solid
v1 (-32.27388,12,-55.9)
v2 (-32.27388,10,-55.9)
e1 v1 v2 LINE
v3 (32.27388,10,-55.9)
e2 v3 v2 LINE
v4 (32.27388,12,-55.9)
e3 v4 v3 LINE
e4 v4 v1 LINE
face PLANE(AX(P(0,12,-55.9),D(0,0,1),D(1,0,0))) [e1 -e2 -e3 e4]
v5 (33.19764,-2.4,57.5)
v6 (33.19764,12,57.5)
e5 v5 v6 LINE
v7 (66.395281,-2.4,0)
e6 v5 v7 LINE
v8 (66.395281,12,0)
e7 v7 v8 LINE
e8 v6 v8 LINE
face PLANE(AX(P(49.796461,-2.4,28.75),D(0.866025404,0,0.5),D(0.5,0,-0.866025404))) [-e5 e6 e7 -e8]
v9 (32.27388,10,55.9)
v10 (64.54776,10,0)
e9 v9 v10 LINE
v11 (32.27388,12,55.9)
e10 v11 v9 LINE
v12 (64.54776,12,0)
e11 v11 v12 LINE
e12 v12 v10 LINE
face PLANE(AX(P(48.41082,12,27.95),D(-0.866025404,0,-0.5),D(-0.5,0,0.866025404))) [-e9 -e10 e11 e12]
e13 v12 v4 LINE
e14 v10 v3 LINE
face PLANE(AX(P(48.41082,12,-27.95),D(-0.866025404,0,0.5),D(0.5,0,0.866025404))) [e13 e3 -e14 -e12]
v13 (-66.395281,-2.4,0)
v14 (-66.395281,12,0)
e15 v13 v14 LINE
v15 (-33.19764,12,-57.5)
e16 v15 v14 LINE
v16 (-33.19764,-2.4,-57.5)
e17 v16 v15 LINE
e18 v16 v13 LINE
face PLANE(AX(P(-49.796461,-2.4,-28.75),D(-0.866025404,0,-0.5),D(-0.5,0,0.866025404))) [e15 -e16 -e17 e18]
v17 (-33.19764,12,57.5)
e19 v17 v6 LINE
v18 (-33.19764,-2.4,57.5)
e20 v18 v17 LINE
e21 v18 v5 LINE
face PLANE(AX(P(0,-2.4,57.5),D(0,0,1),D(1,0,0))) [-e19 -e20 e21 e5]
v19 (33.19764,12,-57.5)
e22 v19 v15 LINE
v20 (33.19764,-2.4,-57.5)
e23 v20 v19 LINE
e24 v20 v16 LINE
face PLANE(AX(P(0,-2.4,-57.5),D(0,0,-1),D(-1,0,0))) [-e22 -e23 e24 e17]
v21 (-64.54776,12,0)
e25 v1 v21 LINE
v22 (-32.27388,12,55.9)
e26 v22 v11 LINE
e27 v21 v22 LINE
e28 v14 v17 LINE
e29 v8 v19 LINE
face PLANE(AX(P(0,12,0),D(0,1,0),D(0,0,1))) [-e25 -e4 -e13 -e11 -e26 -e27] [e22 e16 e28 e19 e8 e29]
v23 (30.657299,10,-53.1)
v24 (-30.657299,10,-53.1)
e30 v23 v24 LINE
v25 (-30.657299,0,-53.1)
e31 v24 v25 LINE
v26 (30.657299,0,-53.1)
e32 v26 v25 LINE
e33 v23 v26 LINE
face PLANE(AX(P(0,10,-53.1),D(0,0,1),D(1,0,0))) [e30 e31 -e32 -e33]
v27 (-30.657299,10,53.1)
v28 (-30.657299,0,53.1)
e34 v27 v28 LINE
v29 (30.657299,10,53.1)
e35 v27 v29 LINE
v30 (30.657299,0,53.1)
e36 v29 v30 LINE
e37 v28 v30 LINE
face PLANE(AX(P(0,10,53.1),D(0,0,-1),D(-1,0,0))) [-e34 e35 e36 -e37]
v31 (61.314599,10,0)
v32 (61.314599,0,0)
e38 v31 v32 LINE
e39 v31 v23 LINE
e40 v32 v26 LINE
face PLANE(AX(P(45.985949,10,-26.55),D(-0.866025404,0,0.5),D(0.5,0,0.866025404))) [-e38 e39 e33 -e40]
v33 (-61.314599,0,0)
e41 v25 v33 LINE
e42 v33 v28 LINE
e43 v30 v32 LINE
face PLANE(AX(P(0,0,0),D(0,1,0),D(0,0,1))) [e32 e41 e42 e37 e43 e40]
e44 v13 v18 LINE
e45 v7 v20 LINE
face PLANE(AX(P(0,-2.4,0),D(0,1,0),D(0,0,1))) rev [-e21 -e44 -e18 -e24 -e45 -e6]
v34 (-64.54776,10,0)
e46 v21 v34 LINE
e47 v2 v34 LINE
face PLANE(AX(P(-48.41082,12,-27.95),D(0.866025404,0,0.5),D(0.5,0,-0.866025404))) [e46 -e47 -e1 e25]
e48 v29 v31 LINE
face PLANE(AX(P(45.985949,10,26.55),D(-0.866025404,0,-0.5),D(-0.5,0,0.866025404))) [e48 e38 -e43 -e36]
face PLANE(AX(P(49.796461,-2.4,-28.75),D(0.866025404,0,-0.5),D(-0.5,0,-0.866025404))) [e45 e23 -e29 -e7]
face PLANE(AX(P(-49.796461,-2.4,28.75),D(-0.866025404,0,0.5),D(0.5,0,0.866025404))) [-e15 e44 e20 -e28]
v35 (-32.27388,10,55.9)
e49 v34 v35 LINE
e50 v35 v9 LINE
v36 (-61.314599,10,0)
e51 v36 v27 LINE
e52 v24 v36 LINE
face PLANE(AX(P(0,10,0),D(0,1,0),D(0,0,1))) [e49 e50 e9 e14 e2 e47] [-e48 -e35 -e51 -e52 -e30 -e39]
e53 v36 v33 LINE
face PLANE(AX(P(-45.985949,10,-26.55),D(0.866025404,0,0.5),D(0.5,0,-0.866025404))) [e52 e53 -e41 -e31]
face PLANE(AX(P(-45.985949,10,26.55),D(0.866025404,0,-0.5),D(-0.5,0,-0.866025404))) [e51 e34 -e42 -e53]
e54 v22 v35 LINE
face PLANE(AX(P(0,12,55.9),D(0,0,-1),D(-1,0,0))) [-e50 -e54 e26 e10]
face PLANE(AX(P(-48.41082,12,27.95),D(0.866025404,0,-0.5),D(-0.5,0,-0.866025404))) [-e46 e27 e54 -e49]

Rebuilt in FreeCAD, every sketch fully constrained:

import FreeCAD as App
import Part
import Sketcher
from FreeCAD import Vector
Q = App.Units.Quantity


def add_polygon(sketch, points):
    """Adds a closed chain of lines whose ends are joined by coincident constraints."""
    first, n = sketch.GeometryCount, len(points)
    for a, b in zip(points, points[1:] + points[:1]):
        sketch.addGeometry(Part.LineSegment(App.Vector(*a, 0), App.Vector(*b, 0)), False)
    for i in range(n):
        sketch.addConstraint(Sketcher.Constraint("Coincident", first + i, 2, first + (i + 1) % n, 1))

doc = App.newDocument("Part")
params = doc.addObject("Spreadsheet::Sheet", "Params")
for row, (alias, value) in enumerate([
    ("pad1_length", "2.4 mm"),
    ("pad2_length", "10 mm"),
    ("pad3_length", "12 mm"),
], start=1):
    params.set(f"A{row}", alias)
    params.set(f"B{row}", "=" + value)
    params.setAlias(f"B{row}", alias)

body = doc.addObject("PartDesign::Body", "Body")

# Sketch on XZ plane
sketch1 = doc.addObject("Sketcher::SketchObject", "Sketch")
body.addObject(sketch1)
sketch1.AttachmentSupport = (doc.XZ_Plane, [""])
sketch1.MapMode = "FlatFace"
add_polygon(sketch1, [(66, 0), (33, -58), (-33, -58), (-66, 0), (-33, 58), (33, 58)])  # lines 0-5
sketch1.addConstraint(Sketcher.Constraint("Horizontal", 1))
sketch1.addConstraint(Sketcher.Constraint("Horizontal", 4))
sketch1.addConstraint(Sketcher.Constraint("Symmetric", 0, 2, 3, 2, -1, 1))
sketch1.addConstraint(Sketcher.Constraint("Symmetric", 2, 2, 5, 2, -1, 1))
sketch1.addConstraint(Sketcher.Constraint("PointOnObject", 2, 2, -1))
sketch1.addConstraint(Sketcher.Constraint("Parallel", 2, 5))
sketch1.addConstraint(Sketcher.Constraint("Vertical", 1, 2, 3, 2))
sketch1.addConstraint(Sketcher.Constraint("Angle", 0, Q("-120 deg")))
sketch1.addConstraint(Sketcher.Constraint("DistanceY", 1, 2, 3, 2, 115.0))
sketch1.addConstraint(Sketcher.Constraint("DistanceX", 1, 2, 1, 1, 66.395281))
pad1 = doc.addObject("PartDesign::Pad", "Pad")
body.addObject(pad1)
pad1.Profile = sketch1
pad1.setExpression("Length", "Params.pad1_length")

# Sketch on XZ plane
sketch2 = doc.addObject("Sketcher::SketchObject", "Sketch001")
body.addObject(sketch2)
sketch2.AttachmentSupport = (doc.XZ_Plane, [""])
sketch2.MapMode = "FlatFace"
add_polygon(sketch2, [(32, 56), (65, 0), (32, -56), (-32, -56), (-65, 0), (-32, 56)])  # lines 0-5
add_polygon(sketch2, [(-31, -53), (31, -53), (61, 0), (31, 53), (-31, 53), (-61, 0)])  # lines 6-11
sketch2.addConstraint(Sketcher.Constraint("Horizontal", 2))
sketch2.addConstraint(Sketcher.Constraint("Horizontal", 5))
sketch2.addConstraint(Sketcher.Constraint("Horizontal", 6))
sketch2.addConstraint(Sketcher.Constraint("Horizontal", 9))
sketch2.addConstraint(Sketcher.Constraint("Symmetric", 0, 2, 3, 2, -1, 1))
sketch2.addConstraint(Sketcher.Constraint("Symmetric", 1, 2, 4, 2, -1, 1))
sketch2.addConstraint(Sketcher.Constraint("Symmetric", 6, 2, 9, 2, -1, 1))
sketch2.addConstraint(Sketcher.Constraint("Symmetric", 7, 2, 10, 2, -1, 1))
sketch2.addConstraint(Sketcher.Constraint("PointOnObject", 0, 2, -1))
sketch2.addConstraint(Sketcher.Constraint("PointOnObject", 7, 2, -1))
sketch2.addConstraint(Sketcher.Constraint("Parallel", 0, 3))
sketch2.addConstraint(Sketcher.Constraint("Parallel", 4, 7))
sketch2.addConstraint(Sketcher.Constraint("Parallel", 3, 8))
sketch2.addConstraint(Sketcher.Constraint("Parallel", 8, 11))
sketch2.addConstraint(Sketcher.Constraint("Vertical", 2, 2, 4, 2))
sketch2.addConstraint(Sketcher.Constraint("Angle", 0, Q("-60 deg")))
sketch2.addConstraint(Sketcher.Constraint("DistanceY", 6, 2, 5, 2, 109.0))
sketch2.addConstraint(Sketcher.Constraint("DistanceY", 1, 2, -1, 1, 55.9))
sketch2.addConstraint(Sketcher.Constraint("DistanceX", 6, 1, 6, 2, 61.314599))
sketch2.addConstraint(Sketcher.Constraint("DistanceX", 2, 2, 2, 1, 64.54776))
pad2 = doc.addObject("PartDesign::Pad", "Pad001")
body.addObject(pad2)
pad2.Profile = sketch2
pad2.setExpression("Length", "Params.pad2_length")
pad2.Reversed = True

# Sketch on XZ plane
sketch3 = doc.addObject("Sketcher::SketchObject", "Sketch002")
body.addObject(sketch3)
sketch3.AttachmentSupport = (doc.XZ_Plane, [""])
sketch3.MapMode = "FlatFace"
add_polygon(sketch3, [(-33, 58), (33, 58), (66, 0), (33, -58), (-33, -58), (-66, 0)])  # lines 0-5
add_polygon(sketch3, [(32, -56), (65, 0), (32, 56), (-32, 56), (-65, 0), (-32, -56)])  # lines 6-11
sketch3.addConstraint(Sketcher.Constraint("Horizontal", 0))
sketch3.addConstraint(Sketcher.Constraint("Horizontal", 3))
sketch3.addConstraint(Sketcher.Constraint("Horizontal", 8))
sketch3.addConstraint(Sketcher.Constraint("Horizontal", 11))
sketch3.addConstraint(Sketcher.Constraint("Symmetric", 0, 2, 3, 2, -1, 1))
sketch3.addConstraint(Sketcher.Constraint("Symmetric", 1, 2, 4, 2, -1, 1))
sketch3.addConstraint(Sketcher.Constraint("Symmetric", 6, 2, 9, 2, -1, 1))
sketch3.addConstraint(Sketcher.Constraint("Symmetric", 7, 2, 10, 2, -1, 1))
sketch3.addConstraint(Sketcher.Constraint("PointOnObject", 1, 2, -1))
sketch3.addConstraint(Sketcher.Constraint("PointOnObject", 6, 2, -1))
sketch3.addConstraint(Sketcher.Constraint("Parallel", 2, 5))
sketch3.addConstraint(Sketcher.Constraint("Parallel", 5, 6))
sketch3.addConstraint(Sketcher.Constraint("Parallel", 4, 7))
sketch3.addConstraint(Sketcher.Constraint("Parallel", 6, 9))
sketch3.addConstraint(Sketcher.Constraint("Vertical", 0, 2, 2, 2))
sketch3.addConstraint(Sketcher.Constraint("Angle", 1, Q("-60 deg")))
sketch3.addConstraint(Sketcher.Constraint("DistanceY", 2, 2, 0, 2, 115.0))
sketch3.addConstraint(Sketcher.Constraint("DistanceY", -1, 1, 7, 2, 55.9))
sketch3.addConstraint(Sketcher.Constraint("DistanceX", 0, 1, 0, 2, 66.395281))
sketch3.addConstraint(Sketcher.Constraint("DistanceX", 8, 2, 8, 1, 64.54776))
pad3 = doc.addObject("PartDesign::Pad", "Pad002")
body.addObject(pad3)
pad3.Profile = sketch3
pad3.setExpression("Length", "Params.pad3_length")
pad3.Reversed = True

doc.recompute()
